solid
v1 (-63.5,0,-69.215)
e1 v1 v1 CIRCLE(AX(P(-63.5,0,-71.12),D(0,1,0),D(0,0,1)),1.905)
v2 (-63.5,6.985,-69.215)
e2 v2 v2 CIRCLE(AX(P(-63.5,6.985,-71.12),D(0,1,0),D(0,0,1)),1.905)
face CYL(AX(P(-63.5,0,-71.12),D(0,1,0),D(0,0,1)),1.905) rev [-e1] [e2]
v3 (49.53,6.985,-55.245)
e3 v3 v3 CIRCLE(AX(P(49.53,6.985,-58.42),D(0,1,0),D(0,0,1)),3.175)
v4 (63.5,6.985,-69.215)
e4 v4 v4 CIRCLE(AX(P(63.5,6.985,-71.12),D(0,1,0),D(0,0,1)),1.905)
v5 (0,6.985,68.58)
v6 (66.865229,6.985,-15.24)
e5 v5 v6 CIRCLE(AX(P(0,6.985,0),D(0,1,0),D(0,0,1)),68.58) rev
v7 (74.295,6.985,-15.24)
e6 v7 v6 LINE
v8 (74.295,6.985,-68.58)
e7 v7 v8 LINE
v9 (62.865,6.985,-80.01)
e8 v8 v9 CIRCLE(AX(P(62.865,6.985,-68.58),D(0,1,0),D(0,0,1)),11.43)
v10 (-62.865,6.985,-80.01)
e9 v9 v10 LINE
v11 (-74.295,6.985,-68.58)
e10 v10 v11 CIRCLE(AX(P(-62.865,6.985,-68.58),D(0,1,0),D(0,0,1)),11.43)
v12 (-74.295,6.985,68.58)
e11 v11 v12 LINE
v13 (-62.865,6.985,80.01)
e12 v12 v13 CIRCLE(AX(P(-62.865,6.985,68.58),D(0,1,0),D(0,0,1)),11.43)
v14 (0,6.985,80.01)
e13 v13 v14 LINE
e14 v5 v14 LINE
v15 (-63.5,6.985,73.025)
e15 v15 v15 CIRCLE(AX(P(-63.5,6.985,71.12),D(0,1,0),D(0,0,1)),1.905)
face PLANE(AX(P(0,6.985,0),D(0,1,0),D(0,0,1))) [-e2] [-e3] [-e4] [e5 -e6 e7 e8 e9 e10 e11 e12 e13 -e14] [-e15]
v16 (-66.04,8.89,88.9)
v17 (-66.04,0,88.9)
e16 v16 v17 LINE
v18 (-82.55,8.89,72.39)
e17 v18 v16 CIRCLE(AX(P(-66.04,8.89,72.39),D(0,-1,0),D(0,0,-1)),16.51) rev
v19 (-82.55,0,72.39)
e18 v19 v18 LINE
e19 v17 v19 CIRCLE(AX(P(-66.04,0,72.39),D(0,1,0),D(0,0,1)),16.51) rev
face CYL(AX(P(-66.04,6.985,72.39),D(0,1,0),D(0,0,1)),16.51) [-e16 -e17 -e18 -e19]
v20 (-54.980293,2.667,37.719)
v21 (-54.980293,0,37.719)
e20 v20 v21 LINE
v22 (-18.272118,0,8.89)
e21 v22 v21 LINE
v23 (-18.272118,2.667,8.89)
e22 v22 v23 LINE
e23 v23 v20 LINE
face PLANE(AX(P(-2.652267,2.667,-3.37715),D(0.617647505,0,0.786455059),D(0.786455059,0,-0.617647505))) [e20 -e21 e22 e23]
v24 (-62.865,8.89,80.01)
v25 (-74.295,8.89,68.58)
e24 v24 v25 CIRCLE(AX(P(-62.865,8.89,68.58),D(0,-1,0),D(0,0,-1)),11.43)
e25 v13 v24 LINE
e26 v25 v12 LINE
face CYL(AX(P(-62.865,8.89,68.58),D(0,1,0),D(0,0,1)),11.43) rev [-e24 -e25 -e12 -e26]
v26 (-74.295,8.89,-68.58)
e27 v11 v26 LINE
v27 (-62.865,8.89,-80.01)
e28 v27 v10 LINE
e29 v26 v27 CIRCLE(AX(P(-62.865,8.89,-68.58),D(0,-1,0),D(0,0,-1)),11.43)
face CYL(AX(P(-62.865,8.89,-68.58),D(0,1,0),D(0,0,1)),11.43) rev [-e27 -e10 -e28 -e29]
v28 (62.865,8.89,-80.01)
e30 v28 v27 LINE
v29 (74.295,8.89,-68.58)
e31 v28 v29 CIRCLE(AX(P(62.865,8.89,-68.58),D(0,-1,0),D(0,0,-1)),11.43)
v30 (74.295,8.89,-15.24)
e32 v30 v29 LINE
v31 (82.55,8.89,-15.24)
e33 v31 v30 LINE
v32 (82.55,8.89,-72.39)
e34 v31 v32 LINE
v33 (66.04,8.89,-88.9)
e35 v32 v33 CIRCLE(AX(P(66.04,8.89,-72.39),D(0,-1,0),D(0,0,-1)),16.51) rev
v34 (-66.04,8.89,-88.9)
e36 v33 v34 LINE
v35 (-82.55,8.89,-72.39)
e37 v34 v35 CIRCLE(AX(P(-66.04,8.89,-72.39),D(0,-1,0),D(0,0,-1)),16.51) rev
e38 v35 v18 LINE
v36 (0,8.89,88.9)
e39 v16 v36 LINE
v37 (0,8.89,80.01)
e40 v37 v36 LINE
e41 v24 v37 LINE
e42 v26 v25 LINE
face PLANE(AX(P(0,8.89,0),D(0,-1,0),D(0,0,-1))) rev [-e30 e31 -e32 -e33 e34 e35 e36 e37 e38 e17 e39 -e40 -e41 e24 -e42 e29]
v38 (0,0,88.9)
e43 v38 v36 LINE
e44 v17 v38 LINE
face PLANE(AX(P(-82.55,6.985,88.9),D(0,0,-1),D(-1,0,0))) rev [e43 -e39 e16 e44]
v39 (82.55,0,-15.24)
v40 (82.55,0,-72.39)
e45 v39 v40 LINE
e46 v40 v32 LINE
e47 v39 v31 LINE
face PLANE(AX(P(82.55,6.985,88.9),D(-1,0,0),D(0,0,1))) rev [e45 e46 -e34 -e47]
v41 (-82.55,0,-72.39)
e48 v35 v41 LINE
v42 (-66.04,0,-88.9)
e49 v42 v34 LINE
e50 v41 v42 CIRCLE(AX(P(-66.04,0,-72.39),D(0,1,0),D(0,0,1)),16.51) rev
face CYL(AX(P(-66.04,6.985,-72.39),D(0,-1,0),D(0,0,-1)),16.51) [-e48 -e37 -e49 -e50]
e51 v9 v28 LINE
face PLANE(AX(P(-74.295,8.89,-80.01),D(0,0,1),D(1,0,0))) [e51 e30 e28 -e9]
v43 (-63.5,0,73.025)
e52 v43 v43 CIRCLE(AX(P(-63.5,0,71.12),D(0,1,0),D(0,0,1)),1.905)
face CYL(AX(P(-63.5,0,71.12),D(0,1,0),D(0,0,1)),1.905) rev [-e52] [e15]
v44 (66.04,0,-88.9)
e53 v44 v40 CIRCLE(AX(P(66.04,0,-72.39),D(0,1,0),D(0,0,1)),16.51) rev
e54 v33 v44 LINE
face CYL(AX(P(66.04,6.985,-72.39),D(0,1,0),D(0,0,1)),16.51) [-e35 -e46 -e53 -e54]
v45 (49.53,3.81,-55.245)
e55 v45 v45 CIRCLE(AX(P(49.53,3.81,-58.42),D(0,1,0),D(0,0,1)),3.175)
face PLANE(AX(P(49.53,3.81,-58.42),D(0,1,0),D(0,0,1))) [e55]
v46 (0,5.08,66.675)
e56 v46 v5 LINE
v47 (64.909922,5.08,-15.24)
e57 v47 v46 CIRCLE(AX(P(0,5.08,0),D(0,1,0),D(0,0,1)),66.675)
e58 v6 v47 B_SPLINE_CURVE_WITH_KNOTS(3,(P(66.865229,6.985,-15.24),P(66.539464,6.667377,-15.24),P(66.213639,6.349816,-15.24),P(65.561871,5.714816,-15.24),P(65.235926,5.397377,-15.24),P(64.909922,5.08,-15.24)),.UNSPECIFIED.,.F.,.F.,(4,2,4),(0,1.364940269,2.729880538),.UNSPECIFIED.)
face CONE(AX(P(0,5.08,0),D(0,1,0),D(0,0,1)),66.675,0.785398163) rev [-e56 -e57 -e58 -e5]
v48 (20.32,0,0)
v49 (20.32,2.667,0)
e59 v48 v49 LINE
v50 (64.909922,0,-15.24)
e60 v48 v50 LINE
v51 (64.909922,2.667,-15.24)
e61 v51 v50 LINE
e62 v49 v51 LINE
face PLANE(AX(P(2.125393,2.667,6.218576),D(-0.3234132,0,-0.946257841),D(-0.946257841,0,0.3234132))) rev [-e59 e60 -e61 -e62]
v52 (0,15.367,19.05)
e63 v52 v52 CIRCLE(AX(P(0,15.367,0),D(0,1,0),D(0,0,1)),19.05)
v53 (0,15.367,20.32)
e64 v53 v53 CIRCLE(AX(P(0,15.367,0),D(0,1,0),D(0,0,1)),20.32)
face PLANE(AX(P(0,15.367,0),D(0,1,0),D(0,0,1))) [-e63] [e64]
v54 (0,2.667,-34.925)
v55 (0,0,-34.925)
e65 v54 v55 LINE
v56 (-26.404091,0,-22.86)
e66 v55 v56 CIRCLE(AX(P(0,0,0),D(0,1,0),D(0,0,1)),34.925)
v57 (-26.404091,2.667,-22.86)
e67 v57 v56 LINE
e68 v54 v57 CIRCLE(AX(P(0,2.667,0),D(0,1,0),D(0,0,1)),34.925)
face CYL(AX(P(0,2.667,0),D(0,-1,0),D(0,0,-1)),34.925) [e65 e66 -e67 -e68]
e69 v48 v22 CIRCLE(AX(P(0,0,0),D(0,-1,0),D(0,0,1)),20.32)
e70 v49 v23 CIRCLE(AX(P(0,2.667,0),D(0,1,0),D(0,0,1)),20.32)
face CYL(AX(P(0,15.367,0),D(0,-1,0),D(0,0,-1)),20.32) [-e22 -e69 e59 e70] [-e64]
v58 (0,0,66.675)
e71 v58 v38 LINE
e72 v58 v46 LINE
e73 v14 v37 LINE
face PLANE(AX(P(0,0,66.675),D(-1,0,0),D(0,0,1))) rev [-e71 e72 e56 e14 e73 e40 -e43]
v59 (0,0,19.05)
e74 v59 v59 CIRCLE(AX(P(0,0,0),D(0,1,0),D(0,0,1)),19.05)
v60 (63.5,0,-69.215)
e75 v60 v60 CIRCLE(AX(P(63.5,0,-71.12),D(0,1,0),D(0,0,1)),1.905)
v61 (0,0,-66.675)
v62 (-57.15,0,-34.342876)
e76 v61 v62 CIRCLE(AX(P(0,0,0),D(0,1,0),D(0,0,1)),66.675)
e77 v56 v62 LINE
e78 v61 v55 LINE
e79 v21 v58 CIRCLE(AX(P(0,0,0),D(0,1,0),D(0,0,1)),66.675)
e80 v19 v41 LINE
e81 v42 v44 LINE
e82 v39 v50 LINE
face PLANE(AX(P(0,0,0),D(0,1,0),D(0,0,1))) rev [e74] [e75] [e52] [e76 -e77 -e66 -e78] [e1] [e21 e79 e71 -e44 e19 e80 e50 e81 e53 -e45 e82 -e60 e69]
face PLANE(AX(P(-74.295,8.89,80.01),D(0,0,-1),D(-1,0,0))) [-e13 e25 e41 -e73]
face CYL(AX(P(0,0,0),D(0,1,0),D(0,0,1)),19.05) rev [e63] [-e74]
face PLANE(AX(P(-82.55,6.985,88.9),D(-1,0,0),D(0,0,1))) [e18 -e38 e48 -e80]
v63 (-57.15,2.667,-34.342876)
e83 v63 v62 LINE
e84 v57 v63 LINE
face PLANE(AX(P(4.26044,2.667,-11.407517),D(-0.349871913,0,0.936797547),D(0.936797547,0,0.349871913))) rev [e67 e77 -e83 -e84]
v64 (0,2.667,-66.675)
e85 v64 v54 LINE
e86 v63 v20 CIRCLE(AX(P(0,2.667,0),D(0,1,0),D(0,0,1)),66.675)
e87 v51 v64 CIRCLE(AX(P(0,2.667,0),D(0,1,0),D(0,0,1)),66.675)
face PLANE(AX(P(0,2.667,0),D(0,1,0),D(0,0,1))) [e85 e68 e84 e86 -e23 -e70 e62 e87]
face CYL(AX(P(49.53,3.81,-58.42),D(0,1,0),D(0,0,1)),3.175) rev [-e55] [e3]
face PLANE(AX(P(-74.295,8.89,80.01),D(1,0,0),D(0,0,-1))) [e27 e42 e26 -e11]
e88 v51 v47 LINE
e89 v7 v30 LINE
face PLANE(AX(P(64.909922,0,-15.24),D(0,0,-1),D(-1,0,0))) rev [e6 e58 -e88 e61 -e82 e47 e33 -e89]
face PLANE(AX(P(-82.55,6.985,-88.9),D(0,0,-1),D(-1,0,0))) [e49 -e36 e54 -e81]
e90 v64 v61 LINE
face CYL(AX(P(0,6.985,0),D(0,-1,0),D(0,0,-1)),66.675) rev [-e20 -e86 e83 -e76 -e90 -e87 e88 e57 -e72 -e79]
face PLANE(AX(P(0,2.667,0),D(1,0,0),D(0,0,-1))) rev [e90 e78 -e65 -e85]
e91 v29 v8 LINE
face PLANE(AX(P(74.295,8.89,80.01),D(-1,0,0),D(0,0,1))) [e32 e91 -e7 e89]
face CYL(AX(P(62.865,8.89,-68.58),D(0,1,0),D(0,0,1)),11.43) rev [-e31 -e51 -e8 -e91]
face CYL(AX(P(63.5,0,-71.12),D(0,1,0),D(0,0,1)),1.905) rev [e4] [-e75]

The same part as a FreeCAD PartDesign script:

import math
import FreeCAD as App
import Part
import Sketcher

V = App.Vector
Q = App.Units.Quantity


def edges_at(feature, points):
    """Names of the edges that pass closest to the given points."""
    edges = feature.Shape.Edges
    near = lambda p: min(range(len(edges)), key=lambda i: edges[i].distToShape(Part.Vertex(*p))[0])
    return sorted({f"Edge{near(p) + 1}" for p in points})


def add_polygon(sketch, points):
    """Adds a closed chain of lines whose ends are joined by coincident constraints."""
    first, n = sketch.GeometryCount, len(points)
    for a, b in zip(points, points[1:] + points[:1]):
        sketch.addGeometry(Part.LineSegment(App.Vector(*a, 0), App.Vector(*b, 0)), False)
    for i in range(n):
        sketch.addConstraint(Sketcher.Constraint("Coincident", first + i, 2, first + (i + 1) % n, 1))

doc = App.newDocument("Part")
body = doc.addObject("PartDesign::Body", "Body")

# Sketch on XZ plane
sketch1 = body.newObject("Sketcher::SketchObject", "Sketch")
sketch1.AttachmentSupport = (doc.getObject("XZ_Plane"), [""])
sketch1.MapMode = "FlatFace"
sketch1.addGeometry(Part.Circle(V(0, 0, 0), V(0, 0, 1), 20), False)
sketch1.addConstraint([
    Sketcher.Constraint("Coincident", 0, 3, -1, 1),
    Sketcher.Constraint("Diameter", 0, Q("1.6 in")),
])
pad1 = body.newObject("PartDesign::Pad", "Pad")
pad1.Profile = sketch1
pad1.Length = Q("0.605 in")
pad1.Reversed = True

# Sketch on XZ plane
sketch2 = body.newObject("Sketcher::SketchObject", "Sketch001")
sketch2.AttachmentSupport = (doc.getObject("XZ_Plane"), [""])
sketch2.MapMode = "FlatFace"
sketch2.AttachmentOffset = App.Placement(V(0, 0, -0.605 * 25.4), App.Rotation())
sketch2.addGeometry(Part.Circle(V(0, 0, 0), V(0, 0, 1), 19), False)
sketch2.addConstraint([
    Sketcher.Constraint("Coincident", 0, 3, -1, 1),
    Sketcher.Constraint("Diameter", 0, Q("1.5 in")),
])
pocket1 = body.newObject("PartDesign::Pocket", "Pocket")
pocket1.Profile = sketch2
pocket1.Type = "ThroughAll"
pocket1.Reversed = True

# Sketch on XZ plane
sketch3 = body.newObject("Sketcher::SketchObject", "Sketch002")
sketch3.AttachmentSupport = (doc.getObject("XZ_Plane"), [""])
sketch3.MapMode = "FlatFace"
sketch3.addGeometry([
    Part.ArcOfCircle(Part.Circle(V(0, 0, 0), V(0, 0, 1), 67), math.radians(-90), math.radians(-13)),  # 0
    Part.LineSegment(V(0, -67, 0), V(0, -35, 0)),  # 1
    Part.ArcOfCircle(Part.Circle(V(0, 0, 0), V(0, 0, 1), 35), math.radians(-139), math.radians(-90)),  # 2
    Part.LineSegment(V(-26, -23, 0), V(-57, -34, 0)),  # 3
    Part.ArcOfCircle(Part.Circle(V(0, 0, 0), V(0, 0, 1), 67), math.radians(146), math.radians(211)),  # 4
    Part.LineSegment(V(-55, 38, 0), V(-30, 18, 0)),  # 5
    Part.ArcOfCircle(Part.Circle(V(0, 0, 0), V(0, 0, 1), 35), math.radians(-8), math.radians(149)),  # 6
    Part.LineSegment(V(35, -5, 0), V(65, -15, 0)),  # 7
], False)
sketch3.addConstraint([
    Sketcher.Constraint("Coincident", 0, 1, 1, 1),
    Sketcher.Constraint("Coincident", 1, 2, 2, 2),
    Sketcher.Constraint("Coincident", 2, 1, 3, 1),
    Sketcher.Constraint("Coincident", 3, 2, 4, 2),
    Sketcher.Constraint("Coincident", 4, 1, 5, 1),
    Sketcher.Constraint("Coincident", 5, 2, 6, 2),
    Sketcher.Constraint("Coincident", 6, 1, 7, 1),
    Sketcher.Constraint("Coincident", 7, 2, 0, 2),
    Sketcher.Constraint("Vertical", 1),
    Sketcher.Constraint("Coincident", 0, 3, -1, 1),
    Sketcher.Constraint("Coincident", 2, 3, -1, 1),
    Sketcher.Constraint("Coincident", 4, 3, -1, 1),
    Sketcher.Constraint("Coincident", 6, 3, -1, 1),
    Sketcher.Constraint("Equal", 0, 4),
    Sketcher.Constraint("Equal", 2, 6),
    Sketcher.Constraint("PointOnObject", 0, 1, -2),
    Sketcher.Constraint("Radius", 0, Q("2.625 in")),
    Sketcher.Constraint("Radius", 2, Q("1.375 in")),
    Sketcher.Constraint("DistanceY", 2, 1, -1, 1, Q("0.9 in")),
    Sketcher.Constraint("DistanceY", 7, 2, -1, 1, Q("0.6 in")),
    Sketcher.Constraint("DistanceX", 3, 2, -1, 1, Q("2.25 in")),
    Sketcher.Constraint("DistanceY", -1, 1, 4, 1, Q("1.485 in")),
    Sketcher.Constraint("Distance", 5, 31.876571),
    Sketcher.Constraint("Distance", 7, 32.049208),
])
pad2 = body.newObject("PartDesign::Pad", "Pad001")
pad2.Profile = sketch3
pad2.Length = Q("0.105 in")
pad2.Reversed = True

# Sketch on XZ plane
sketch4 = body.newObject("Sketcher::SketchObject", "Sketch003")
sketch4.AttachmentSupport = (doc.getObject("XZ_Plane"), [""])
sketch4.MapMode = "FlatFace"
sketch4.AttachmentOffset = App.Placement(V(0, 0, -0.105 * 25.4), App.Rotation())
sketch4.addGeometry([
    Part.LineSegment(V(-18, 9, 0), V(-30, 18, 0)),
    Part.ArcOfCircle(Part.Circle(V(4, 10, 0), V(0, 0, 1), 34), math.radians(-26), math.radians(166)),
    Part.LineSegment(V(35, -5, 0), V(20, 0, 0)),
    Part.ArcOfCircle(Part.Circle(V(0, 0, 0), V(0, 0, 1), 20), math.radians(0), math.radians(154)),
], False)
sketch4.addConstraint([
    Sketcher.Constraint("Coincident", 0, 2, 1, 2),
    Sketcher.Constraint("Coincident", 1, 1, 2, 1),
    Sketcher.Constraint("Coincident", 2, 2, 3, 1),
    Sketcher.Constraint("Coincident", 3, 2, 0, 1),
    Sketcher.Constraint("Coincident", 3, 3, -1, 1),
    Sketcher.Constraint("PointOnObject", 2, 2, -1),
    Sketcher.Constraint("Radius", 3, Q("0.8 in")),
    Sketcher.Constraint("DistanceY", -1, 1, 3, 2, Q("0.35 in")),
    Sketcher.Constraint("Radius", 1, 34.412028),
    Sketcher.Constraint("Distance", 0, 14.798919),
    Sketcher.Constraint("DistanceY", -1, 1, 1, 3, 9.99597),
    Sketcher.Constraint("DistanceX", 0, 2, 1, 3, 33.460929),
    Sketcher.Constraint("DistanceX", 0, 2, 1, 1, 64.493911),
])
pocket2 = body.newObject("PartDesign::Pocket", "Pocket001")
pocket2.Profile = sketch4
pocket2.Type = "ThroughAll"
pocket2.Reversed = True

# Sketch on XZ plane
sketch5 = body.newObject("Sketcher::SketchObject", "Sketch004")
sketch5.AttachmentSupport = (doc.getObject("XZ_Plane"), [""])
sketch5.MapMode = "FlatFace"
sketch5.AttachmentOffset = App.Placement(V(0, 0, -0.105 * 25.4), App.Rotation())
sketch5.addGeometry(Part.Circle(V(0, 0, 0), V(0, 0, 1), 19), False)
sketch5.addConstraint([
    Sketcher.Constraint("Coincident", 0, 3, -1, 1),
    Sketcher.Constraint("Diameter", 0, Q("1.5 in")),
])
pocket3 = body.newObject("PartDesign::Pocket", "Pocket002")
pocket3.Profile = sketch5
pocket3.Type = "ThroughAll"
pocket3.Reversed = True

# Sketch on XZ plane
sketch6 = body.newObject("Sketcher::SketchObject", "Sketch005")
sketch6.AttachmentSupport = (doc.getObject("XZ_Plane"), [""])
sketch6.MapMode = "FlatFace"
add_polygon(sketch6, [(-83, -89), (-83, 89), (83, 89), (83, -89)])  # lines 0-3
sketch6.addGeometry(Part.Circle(V(0, 0, 0), V(0, 0, 1), 67), False)  # 4
sketch6.addConstraint([
    Sketcher.Constraint("Vertical", 0),
    Sketcher.Constraint("Horizontal", 1),
    Sketcher.Constraint("Vertical", 2),
    Sketcher.Constraint("Horizontal", 3),
    Sketcher.Constraint("Coincident", 4, 3, -1, 1),
    Sketcher.Constraint("Symmetric", 0, 2, 2, 2, -1, 1),
    Sketcher.Constraint("Diameter", 4, Q("5.25 in")),
    Sketcher.Constraint("DistanceY", 0, 1, 0, 2, Q("7 in")),
    Sketcher.Constraint("DistanceX", 1, 1, 1, 2, Q("6.5 in")),
])
pad3 = body.newObject("PartDesign::Pad", "Pad002")
pad3.Profile = sketch6
pad3.Length = Q("0.275 in")
pad3.Reversed = True

# Sketch on XZ plane
sketch7 = body.newObject("Sketcher::SketchObject", "Sketch006")
sketch7.AttachmentSupport = (doc.getObject("XZ_Plane"), [""])
sketch7.MapMode = "FlatFace"
sketch7.AttachmentOffset = App.Placement(V(0, 0, -0.275 * 25.4), App.Rotation())
add_polygon(sketch7, [(-83, -89), (-83, 89), (83, 89), (83, -89)])  # lines 0-3
add_polygon(sketch7, [(74, 80), (-74, 80), (-74, -80), (74, -80)])  # lines 4-7
sketch7.addConstraint([
    Sketcher.Constraint("Vertical", 0),
    Sketcher.Constraint("Horizontal", 1),
    Sketcher.Constraint("Vertical", 2),
    Sketcher.Constraint("Horizontal", 3),
    Sketcher.Constraint("Horizontal", 4),
    Sketcher.Constraint("Vertical", 5),
    Sketcher.Constraint("Horizontal", 6),
    Sketcher.Constraint("Vertical", 7),
    Sketcher.Constraint("Symmetric", 0, 2, 2, 2, -1, 1),
    Sketcher.Constraint("Symmetric", 4, 2, 6, 2, -1, 1),
    Sketcher.Constraint("DistanceY", 0, 1, 0, 2, Q("7 in")),
    Sketcher.Constraint("DistanceX", 1, 1, 1, 2, Q("6.5 in")),
    Sketcher.Constraint("DistanceY", 5, 2, 5, 1, Q("6.3 in")),
    Sketcher.Constraint("DistanceX", 4, 2, 4, 1, Q("5.85 in")),
])
pad4 = body.newObject("PartDesign::Pad", "Pad003")
pad4.Profile = sketch7
pad4.Length = Q("0.075 in")
pad4.Reversed = True

# Sketch on XZ plane
sketch8 = body.newObject("Sketcher::SketchObject", "Sketch007")
sketch8.AttachmentSupport = (doc.getObject("XZ_Plane"), [""])
sketch8.MapMode = "FlatFace"
sketch8.AttachmentOffset = App.Placement(V(0, 0, -0.275 * 25.4), App.Rotation())
sketch8.addGeometry([
    Part.LineSegment(V(83, -15, 0), V(65, -15, 0)),
    Part.ArcOfCircle(Part.Circle(V(164, 130, 0), V(0, 0, 1), 176), math.radians(-159), math.radians(-124)),
    Part.LineSegment(V(0, 67, 0), V(0, 89, 0)),
    Part.ArcOfCircle(Part.Circle(V(50, 44, 0), V(0, 0, 1), 67), math.radians(-61), math.radians(138)),
], False)
sketch8.addConstraint([
    Sketcher.Constraint("Coincident", 0, 2, 1, 2),
    Sketcher.Constraint("Coincident", 1, 1, 2, 1),
    Sketcher.Constraint("Coincident", 2, 2, 3, 2),
    Sketcher.Constraint("Coincident", 3, 1, 0, 1),
    Sketcher.Constraint("Horizontal", 0),
    Sketcher.Constraint("Vertical", 2),
    Sketcher.Constraint("PointOnObject", 1, 1, -2),
    Sketcher.Constraint("DistanceY", 0, 2, -1, 1, Q("0.6 in")),
    Sketcher.Constraint("DistanceY", -1, 1, 2, 2, Q("3.5 in")),
    Sketcher.Constraint("DistanceY", 2, 1, 2, 2, Q("0.875 in")),
    Sketcher.Constraint("DistanceX", -1, 1, 3, 1, Q("3.25 in")),
    Sketcher.Constraint("Radius", 1, 176.00508),
    Sketcher.Constraint("Radius", 3, 67.440618),
    Sketcher.Constraint("DistanceX", 0, 2, 0, 1, 17.640078),
])
pocket4 = body.newObject("PartDesign::Pocket", "Pocket003")
pocket4.Profile = sketch8
pocket4.Type = "ThroughAll"
pocket4.Reversed = True

# Sketch on XZ plane
sketch9 = body.newObject("Sketcher::SketchObject", "Sketch008")
sketch9.AttachmentSupport = (doc.getObject("XZ_Plane"), [""])
sketch9.MapMode = "FlatFace"
sketch9.AttachmentOffset = App.Placement(V(0, 0, -0.35 * 25.4), App.Rotation())
sketch9.addGeometry([
    Part.LineSegment(V(83, -15, 0), V(74, -15, 0)),
    Part.ArcOfCircle(Part.Circle(V(212, 169, 0), V(0, 0, 1), 230), math.radians(-157), math.radians(-127)),
    Part.LineSegment(V(0, 80, 0), V(0, 89, 0)),
    Part.ArcOfCircle(Part.Circle(V(49, 43, 0), V(0, 0, 1), 67), math.radians(-60), math.radians(137)),
], False)
sketch9.addConstraint([
    Sketcher.Constraint("Coincident", 0, 2, 1, 2),
    Sketcher.Constraint("Coincident", 1, 1, 2, 1),
    Sketcher.Constraint("Coincident", 2, 2, 3, 2),
    Sketcher.Constraint("Coincident", 3, 1, 0, 1),
    Sketcher.Constraint("Horizontal", 0),
    Sketcher.Constraint("Vertical", 2),
    Sketcher.Constraint("PointOnObject", 1, 1, -2),
    Sketcher.Constraint("DistanceY", 2, 1, 2, 2, Q("0.35 in")),
    Sketcher.Constraint("DistanceY", 0, 2, -1, 1, Q("0.6 in")),
    Sketcher.Constraint("DistanceY", -1, 1, 2, 2, Q("3.5 in")),
    Sketcher.Constraint("DistanceX", 0, 2, 0, 1, Q("0.325 in")),
    Sketcher.Constraint("DistanceX", -1, 1, 3, 1, Q("3.25 in")),
    Sketcher.Constraint("Radius", 3, 67.115772),
    Sketcher.Constraint("Radius", 1, 229.945954),
])
pocket5 = body.newObject("PartDesign::Pocket", "Pocket004")
pocket5.Profile = sketch9
pocket5.Type = "ThroughAll"
pocket5.Reversed = True
doc.recompute()

fillet = body.newObject("PartDesign::Fillet", "Fillet")
fillet.Base = (pocket5, edges_at(pocket5, [(82.55, 3.493, -88.9), (-82.55, 3.493, -88.9), (-82.55, 3.493, 88.9)]))
fillet.Radius = Q("0.65 in")
doc.recompute()

fillet2 = body.newObject("PartDesign::Fillet", "Fillet001")
fillet2.Base = (fillet, edges_at(fillet, [(74.295, 7.938, -80.01), (-74.295, 7.938, -80.01), (-74.295, 7.938, 80.01)]))
fillet2.Radius = Q("0.45 in")
doc.recompute()

chamfer = body.newObject("PartDesign::Chamfer", "Chamfer")
chamfer.Base = (fillet2, edges_at(fillet2, [(-52.257, 6.985, -41.409)]))
chamfer.Size = Q("0.075 in")

# Sketch on XZ plane
sketch10 = body.newObject("Sketcher::SketchObject", "Sketch009")
sketch10.AttachmentSupport = (doc.getObject("XZ_Plane"), [""])
sketch10.MapMode = "FlatFace"
sketch10.AttachmentOffset = App.Placement(V(0, 0, -0.275 * 25.4), App.Rotation())
sketch10.addGeometry([
    Part.Circle(V(63.5, -71.1, 0), V(0, 0, 1), 1.9),
    Part.Circle(V(-63.5, -71.1, 0), V(0, 0, 1), 1.9),
    Part.Circle(V(-63.5, 71.1, 0), V(0, 0, 1), 1.9),
], False)
sketch10.addConstraint([
    Sketcher.Constraint("Equal", 0, 1),
    Sketcher.Constraint("Equal", 1, 2),
    Sketcher.Constraint("Symmetric", 0, 3, 2, 3, -1, 1),
    Sketcher.Constraint("Symmetric", 0, 3, 1, 3, -2),
    Sketcher.Constraint("Diameter", 0, Q("0.15 in")),
    Sketcher.Constraint("DistanceX", 1, 3, 0, 3, Q("5 in")),
    Sketcher.Constraint("DistanceY", 0, 3, -1, 1, Q("2.8 in")),
])
pocket6 = body.newObject("PartDesign::Pocket", "Pocket005")
pocket6.Profile = sketch10
pocket6.Type = "ThroughAll"
pocket6.Reversed = True

# Sketch on XZ plane
sketch11 = body.newObject("Sketcher::SketchObject", "Sketch010")
sketch11.AttachmentSupport = (doc.getObject("XZ_Plane"), [""])
sketch11.MapMode = "FlatFace"
sketch11.AttachmentOffset = App.Placement(V(0, 0, -0.275 * 25.4), App.Rotation())
sketch11.addGeometry(Part.Circle(V(49.5, -58.4, 0), V(0, 0, 1), 3.2), False)
sketch11.addConstraint([
    Sketcher.Constraint("Diameter", 0, Q("0.25 in")),
    Sketcher.Constraint("DistanceY", 0, 3, -1, 1, Q("2.3 in")),
    Sketcher.Constraint("DistanceX", -1, 1, 0, 3, Q("1.95 in")),
])
pocket7 = body.newObject("PartDesign::Pocket", "Pocket006")
pocket7.Profile = sketch11
pocket7.Length = Q("0.125 in")
pocket7.Reversed = True

doc.recompute()
